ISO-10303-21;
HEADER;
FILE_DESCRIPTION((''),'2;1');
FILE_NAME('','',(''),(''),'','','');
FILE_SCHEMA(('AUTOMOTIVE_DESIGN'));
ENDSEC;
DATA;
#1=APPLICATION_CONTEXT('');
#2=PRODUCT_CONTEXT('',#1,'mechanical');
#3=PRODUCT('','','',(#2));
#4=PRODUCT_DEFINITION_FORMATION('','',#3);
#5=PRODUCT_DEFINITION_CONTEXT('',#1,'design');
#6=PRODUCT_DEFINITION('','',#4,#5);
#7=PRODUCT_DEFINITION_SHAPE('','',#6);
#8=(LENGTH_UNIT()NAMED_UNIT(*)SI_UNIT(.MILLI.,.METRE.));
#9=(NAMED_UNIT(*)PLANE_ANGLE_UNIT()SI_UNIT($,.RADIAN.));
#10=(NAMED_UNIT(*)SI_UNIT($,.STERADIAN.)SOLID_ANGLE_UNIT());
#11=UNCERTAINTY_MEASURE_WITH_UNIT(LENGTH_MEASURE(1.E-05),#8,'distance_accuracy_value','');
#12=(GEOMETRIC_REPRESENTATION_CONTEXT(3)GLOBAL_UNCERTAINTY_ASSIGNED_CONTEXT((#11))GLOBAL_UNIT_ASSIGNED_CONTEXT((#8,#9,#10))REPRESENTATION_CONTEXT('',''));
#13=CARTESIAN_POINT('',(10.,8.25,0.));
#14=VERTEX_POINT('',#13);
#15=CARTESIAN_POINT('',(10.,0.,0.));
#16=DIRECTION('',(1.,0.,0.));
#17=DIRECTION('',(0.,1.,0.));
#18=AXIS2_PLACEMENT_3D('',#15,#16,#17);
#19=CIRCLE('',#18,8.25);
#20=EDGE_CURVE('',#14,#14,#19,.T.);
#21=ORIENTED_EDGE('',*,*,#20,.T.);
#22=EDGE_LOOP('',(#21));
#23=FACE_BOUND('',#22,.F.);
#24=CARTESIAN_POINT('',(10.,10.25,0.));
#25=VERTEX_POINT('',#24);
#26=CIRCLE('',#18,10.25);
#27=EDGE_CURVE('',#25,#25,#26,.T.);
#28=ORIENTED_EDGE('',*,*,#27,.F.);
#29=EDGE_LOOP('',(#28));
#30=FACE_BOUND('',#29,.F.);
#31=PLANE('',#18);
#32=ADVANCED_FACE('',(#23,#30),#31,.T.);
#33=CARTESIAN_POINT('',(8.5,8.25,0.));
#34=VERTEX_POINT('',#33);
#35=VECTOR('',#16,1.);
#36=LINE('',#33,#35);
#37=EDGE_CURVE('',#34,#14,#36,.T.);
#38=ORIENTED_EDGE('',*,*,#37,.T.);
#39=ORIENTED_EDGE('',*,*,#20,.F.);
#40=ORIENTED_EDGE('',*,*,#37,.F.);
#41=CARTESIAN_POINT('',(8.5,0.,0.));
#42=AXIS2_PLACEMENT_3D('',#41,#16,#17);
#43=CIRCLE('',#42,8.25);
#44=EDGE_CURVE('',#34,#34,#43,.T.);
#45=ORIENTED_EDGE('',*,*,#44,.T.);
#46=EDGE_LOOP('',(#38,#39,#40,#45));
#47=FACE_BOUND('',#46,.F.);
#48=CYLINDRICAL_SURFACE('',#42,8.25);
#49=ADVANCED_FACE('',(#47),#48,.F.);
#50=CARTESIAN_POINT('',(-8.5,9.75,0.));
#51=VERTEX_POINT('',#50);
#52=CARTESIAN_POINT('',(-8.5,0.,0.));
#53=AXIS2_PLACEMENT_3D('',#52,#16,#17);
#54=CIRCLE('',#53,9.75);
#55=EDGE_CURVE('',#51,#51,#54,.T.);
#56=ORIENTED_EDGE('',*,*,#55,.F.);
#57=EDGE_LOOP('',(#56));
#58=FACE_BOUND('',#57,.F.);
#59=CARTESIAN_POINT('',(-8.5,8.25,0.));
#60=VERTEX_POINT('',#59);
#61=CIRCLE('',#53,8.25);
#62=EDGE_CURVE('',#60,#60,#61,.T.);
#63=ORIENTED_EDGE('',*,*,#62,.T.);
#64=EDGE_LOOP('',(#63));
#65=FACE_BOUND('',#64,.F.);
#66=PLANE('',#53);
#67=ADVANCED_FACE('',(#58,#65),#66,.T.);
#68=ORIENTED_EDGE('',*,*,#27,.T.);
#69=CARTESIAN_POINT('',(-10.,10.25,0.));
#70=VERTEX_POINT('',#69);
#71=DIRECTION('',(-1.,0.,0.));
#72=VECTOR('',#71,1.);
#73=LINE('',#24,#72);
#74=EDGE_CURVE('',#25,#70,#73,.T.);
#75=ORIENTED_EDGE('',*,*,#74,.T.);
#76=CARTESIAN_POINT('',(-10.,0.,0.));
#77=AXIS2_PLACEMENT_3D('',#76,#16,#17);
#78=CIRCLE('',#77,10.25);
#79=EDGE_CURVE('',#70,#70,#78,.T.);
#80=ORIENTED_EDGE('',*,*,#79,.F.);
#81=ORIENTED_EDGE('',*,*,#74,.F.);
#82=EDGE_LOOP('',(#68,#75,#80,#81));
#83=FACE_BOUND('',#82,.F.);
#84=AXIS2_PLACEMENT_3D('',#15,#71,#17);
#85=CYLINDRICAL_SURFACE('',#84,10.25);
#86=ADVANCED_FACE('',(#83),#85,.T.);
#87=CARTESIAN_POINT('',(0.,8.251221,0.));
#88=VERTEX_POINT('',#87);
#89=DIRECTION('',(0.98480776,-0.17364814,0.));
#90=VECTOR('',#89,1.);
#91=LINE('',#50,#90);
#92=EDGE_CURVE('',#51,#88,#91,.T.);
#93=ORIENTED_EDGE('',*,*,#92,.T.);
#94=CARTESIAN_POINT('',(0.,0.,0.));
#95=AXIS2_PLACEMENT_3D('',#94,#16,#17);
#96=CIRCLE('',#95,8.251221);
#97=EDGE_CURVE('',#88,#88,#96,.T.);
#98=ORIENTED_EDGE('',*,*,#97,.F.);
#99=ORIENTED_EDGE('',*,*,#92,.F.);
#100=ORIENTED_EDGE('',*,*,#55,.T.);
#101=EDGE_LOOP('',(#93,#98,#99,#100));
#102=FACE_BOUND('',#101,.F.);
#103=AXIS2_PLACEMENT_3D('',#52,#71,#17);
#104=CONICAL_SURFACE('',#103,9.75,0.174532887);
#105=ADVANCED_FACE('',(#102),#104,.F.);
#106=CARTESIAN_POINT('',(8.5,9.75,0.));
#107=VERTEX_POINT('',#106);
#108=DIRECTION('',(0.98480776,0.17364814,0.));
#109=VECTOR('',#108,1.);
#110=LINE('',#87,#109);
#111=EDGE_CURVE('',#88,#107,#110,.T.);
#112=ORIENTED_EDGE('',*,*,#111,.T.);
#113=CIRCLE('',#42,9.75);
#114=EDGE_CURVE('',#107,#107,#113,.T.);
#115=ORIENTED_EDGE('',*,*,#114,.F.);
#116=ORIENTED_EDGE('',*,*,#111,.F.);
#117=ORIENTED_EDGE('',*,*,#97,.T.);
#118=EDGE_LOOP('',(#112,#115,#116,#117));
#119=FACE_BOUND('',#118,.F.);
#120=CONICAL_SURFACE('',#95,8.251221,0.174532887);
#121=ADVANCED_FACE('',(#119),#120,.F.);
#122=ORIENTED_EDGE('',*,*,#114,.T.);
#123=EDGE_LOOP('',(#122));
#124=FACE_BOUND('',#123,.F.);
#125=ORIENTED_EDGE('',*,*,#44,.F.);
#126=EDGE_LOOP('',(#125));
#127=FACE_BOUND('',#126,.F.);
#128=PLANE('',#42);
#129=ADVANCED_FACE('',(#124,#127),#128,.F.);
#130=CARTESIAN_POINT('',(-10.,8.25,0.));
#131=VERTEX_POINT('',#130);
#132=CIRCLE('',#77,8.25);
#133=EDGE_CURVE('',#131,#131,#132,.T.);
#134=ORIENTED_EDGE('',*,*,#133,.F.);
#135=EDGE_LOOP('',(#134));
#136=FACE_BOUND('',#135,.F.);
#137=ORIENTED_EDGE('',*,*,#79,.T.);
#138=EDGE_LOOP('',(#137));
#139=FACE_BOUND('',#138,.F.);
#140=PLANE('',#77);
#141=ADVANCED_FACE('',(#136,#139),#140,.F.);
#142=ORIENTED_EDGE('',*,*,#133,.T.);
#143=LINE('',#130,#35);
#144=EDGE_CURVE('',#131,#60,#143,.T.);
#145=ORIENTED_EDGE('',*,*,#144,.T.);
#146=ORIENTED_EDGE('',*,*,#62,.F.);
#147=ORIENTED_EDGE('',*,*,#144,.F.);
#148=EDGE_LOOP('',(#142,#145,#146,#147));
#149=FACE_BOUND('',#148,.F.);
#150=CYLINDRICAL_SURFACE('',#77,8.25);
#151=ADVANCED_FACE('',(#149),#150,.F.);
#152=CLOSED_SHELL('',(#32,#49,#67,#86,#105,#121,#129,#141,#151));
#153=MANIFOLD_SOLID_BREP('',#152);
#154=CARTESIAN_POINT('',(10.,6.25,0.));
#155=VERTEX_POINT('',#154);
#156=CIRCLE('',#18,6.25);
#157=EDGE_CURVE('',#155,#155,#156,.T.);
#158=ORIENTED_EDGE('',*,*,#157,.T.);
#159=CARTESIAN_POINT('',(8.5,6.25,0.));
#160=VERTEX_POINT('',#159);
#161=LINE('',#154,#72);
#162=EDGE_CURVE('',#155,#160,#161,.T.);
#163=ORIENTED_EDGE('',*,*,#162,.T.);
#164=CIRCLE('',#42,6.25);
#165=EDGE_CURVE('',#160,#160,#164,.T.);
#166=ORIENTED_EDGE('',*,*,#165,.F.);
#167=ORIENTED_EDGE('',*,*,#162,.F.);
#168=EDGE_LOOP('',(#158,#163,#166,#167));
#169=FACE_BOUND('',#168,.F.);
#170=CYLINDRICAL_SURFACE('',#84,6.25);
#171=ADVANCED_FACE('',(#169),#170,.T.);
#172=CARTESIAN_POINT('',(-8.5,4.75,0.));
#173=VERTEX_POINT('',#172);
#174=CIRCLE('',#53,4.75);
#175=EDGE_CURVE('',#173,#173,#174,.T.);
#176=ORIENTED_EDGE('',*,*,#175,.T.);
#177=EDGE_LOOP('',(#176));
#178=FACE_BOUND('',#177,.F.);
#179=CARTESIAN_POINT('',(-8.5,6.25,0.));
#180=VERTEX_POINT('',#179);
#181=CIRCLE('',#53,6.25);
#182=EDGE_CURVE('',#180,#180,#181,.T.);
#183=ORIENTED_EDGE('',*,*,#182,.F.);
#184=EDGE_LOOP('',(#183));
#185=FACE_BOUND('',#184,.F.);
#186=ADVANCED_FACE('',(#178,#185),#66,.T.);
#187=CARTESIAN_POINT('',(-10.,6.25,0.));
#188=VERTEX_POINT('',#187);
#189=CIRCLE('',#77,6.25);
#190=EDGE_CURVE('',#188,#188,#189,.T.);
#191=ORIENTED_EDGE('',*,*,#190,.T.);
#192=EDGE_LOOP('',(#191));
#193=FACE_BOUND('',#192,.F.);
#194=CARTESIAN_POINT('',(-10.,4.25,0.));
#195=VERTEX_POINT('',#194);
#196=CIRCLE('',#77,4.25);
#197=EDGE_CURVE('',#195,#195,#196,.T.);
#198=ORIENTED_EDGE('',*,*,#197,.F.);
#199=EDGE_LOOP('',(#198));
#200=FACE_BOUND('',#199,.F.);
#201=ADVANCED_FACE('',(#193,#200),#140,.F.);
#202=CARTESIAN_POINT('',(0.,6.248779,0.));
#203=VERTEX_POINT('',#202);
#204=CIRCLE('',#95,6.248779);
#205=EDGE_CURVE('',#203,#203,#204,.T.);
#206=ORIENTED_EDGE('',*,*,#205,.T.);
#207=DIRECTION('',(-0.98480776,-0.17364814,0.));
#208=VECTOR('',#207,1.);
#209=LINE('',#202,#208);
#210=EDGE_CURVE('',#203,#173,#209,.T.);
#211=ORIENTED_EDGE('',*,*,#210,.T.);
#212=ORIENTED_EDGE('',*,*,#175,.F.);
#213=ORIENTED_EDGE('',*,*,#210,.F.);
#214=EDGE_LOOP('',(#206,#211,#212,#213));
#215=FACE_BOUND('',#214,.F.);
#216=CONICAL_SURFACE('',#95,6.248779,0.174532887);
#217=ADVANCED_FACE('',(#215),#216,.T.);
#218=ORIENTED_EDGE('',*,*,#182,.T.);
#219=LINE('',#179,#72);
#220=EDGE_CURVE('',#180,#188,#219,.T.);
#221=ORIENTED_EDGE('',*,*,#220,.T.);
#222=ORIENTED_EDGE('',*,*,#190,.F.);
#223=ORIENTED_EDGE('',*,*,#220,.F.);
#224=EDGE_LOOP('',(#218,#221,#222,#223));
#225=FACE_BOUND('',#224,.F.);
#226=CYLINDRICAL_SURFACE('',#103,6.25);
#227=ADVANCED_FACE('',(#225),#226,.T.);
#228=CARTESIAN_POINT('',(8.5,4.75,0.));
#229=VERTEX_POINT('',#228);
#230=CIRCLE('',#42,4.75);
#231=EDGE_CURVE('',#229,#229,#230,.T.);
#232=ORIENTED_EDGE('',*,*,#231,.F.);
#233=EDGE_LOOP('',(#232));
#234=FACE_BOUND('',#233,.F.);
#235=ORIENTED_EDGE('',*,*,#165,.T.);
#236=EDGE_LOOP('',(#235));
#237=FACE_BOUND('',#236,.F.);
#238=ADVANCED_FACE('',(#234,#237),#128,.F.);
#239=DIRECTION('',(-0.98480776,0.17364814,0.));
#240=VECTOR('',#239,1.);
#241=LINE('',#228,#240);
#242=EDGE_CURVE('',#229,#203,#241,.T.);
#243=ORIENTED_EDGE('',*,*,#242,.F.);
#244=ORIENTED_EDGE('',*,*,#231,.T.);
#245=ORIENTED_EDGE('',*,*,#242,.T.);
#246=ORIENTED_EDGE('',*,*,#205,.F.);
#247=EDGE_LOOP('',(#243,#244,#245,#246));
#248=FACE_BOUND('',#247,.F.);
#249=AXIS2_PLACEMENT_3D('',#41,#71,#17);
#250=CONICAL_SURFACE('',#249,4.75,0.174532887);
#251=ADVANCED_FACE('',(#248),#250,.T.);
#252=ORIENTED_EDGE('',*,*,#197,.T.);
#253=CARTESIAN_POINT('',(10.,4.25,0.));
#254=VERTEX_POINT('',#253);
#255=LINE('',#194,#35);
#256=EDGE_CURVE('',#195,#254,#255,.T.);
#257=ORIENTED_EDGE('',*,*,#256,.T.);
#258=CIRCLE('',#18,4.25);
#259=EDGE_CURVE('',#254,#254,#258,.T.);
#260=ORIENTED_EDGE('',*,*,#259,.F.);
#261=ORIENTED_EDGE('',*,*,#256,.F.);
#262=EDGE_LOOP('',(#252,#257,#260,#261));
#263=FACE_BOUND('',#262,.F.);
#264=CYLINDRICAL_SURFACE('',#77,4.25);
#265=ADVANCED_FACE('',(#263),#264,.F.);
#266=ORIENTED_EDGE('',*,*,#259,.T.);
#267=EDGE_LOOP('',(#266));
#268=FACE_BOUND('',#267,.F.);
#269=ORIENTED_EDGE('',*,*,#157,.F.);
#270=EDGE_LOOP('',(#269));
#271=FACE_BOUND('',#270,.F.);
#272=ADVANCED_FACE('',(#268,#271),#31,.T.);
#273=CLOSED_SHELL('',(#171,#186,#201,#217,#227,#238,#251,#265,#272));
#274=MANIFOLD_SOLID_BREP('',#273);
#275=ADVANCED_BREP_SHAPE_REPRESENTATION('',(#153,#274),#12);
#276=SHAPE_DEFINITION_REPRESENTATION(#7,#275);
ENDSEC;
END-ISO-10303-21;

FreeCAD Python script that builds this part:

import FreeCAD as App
import Part
import Sketcher

V = App.Vector
Q = App.Units.Quantity


def add_polygon(sketch, points):
    """Adds a closed chain of lines whose ends are joined by coincident constraints."""
    first, n = sketch.GeometryCount, len(points)
    for a, b in zip(points, points[1:] + points[:1]):
        sketch.addGeometry(Part.LineSegment(App.Vector(*a, 0), App.Vector(*b, 0)), False)
    for i in range(n):
        sketch.addConstraint(Sketcher.Constraint("Coincident", first + i, 2, first + (i + 1) % n, 1))

doc = App.newDocument("Part")
body = doc.addObject("PartDesign::Body", "Body")
body.AllowCompound = True

sketch1 = doc.addObject("Sketcher::SketchObject", "Sketch")
body.addObject(sketch1)
sketch1.AttachmentSupport = (doc.XY_Plane, [""])
sketch1.MapMode = "FlatFace"
add_polygon(sketch1, [(-10, 6.25), (-10, 4.25), (10, 4.25), (10, 6.25), (8.5, 6.25), (8.5, 4.75), (0, 6.248779), (-8.5, 4.75), (-8.5, 6.25)])
add_polygon(sketch1, [(-10, 10.25), (-10, 8.25), (-8.5, 8.25), (-8.5, 9.75), (0, 8.251221), (8.5, 9.75), (8.5, 8.25), (10, 8.25), (10, 10.25)])
sketch1.addConstraint([
    Sketcher.Constraint("Vertical", 0),
    Sketcher.Constraint("Horizontal", 1),
    Sketcher.Constraint("Vertical", 2),
    Sketcher.Constraint("Horizontal", 3),
    Sketcher.Constraint("Vertical", 4),
    Sketcher.Constraint("Vertical", 7),
    Sketcher.Constraint("Horizontal", 8),
    Sketcher.Constraint("Vertical", 9),
    Sketcher.Constraint("Horizontal", 10),
    Sketcher.Constraint("Vertical", 11),
    Sketcher.Constraint("Vertical", 14),
    Sketcher.Constraint("Horizontal", 15),
    Sketcher.Constraint("Vertical", 16),
    Sketcher.Constraint("Horizontal", 17),
    Sketcher.Constraint("Symmetric", 4, 2, 6, 2, -2),
    Sketcher.Constraint("Symmetric", 2, 2, 8, 2, -2),
    Sketcher.Constraint("Symmetric", 11, 2, 13, 2, -2),
    Sketcher.Constraint("Symmetric", 9, 2, 15, 2, -2),
    Sketcher.Constraint("PointOnObject", 5, 2, -2),
    Sketcher.Constraint("PointOnObject", 12, 2, -2),
    Sketcher.Constraint("Parallel", 5, 12),
    Sketcher.Constraint("Vertical", 8, 2, 9, 2),
    Sketcher.Constraint("Vertical", 7, 2, 10, 2),
    Sketcher.Constraint("Equal", 15, 4),
    Sketcher.Constraint("Equal", 2, 9),
    Sketcher.Constraint("Equal", 7, 11),
    Sketcher.Constraint("DistanceX", 1, 1, 1, 2, 20.0),
    Sketcher.Constraint("DistanceY", 0, 2, 0, 1, 2.0),
    Sketcher.Constraint("Angle", 5, Q("170.000002 deg")),
    Sketcher.Constraint("DistanceX", 3, 2, 3, 1, 1.5),
    Sketcher.Constraint("DistanceY", 8, 2, 9, 2, 2.0),
    Sketcher.Constraint("DistanceY", -1, 1, 0, 2, 4.25),
])
revolution = doc.addObject("PartDesign::Revolution", "Revolution")
body.addObject(revolution)
revolution.Profile = sketch1
revolution.ReferenceAxis = (sketch1, ["H_Axis"])
revolution.Angle = 360

doc.recompute()
